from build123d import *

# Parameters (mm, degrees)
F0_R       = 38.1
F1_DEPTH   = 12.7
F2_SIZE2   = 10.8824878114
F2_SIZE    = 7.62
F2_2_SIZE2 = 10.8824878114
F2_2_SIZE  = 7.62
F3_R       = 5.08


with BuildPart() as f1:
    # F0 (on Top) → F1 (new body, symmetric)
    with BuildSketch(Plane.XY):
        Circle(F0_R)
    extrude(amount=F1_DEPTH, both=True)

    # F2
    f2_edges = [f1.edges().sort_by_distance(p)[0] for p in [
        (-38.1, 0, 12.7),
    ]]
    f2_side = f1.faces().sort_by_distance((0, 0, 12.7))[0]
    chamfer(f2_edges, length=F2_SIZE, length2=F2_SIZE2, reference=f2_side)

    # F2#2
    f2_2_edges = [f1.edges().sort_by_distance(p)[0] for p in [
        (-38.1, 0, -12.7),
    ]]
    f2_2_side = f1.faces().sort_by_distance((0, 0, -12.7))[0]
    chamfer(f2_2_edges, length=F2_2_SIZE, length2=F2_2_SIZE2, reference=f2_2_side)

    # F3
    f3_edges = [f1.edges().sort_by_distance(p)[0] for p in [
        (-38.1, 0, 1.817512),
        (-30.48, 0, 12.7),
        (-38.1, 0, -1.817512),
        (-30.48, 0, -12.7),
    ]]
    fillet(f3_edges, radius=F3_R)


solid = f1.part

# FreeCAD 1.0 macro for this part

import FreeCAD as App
import Part
import Sketcher
Q = App.Units.Quantity


def edges_at(feature, points):
    """Names of the edges that pass closest to the given points."""
    edges = feature.Shape.Edges
    near = lambda p: min(range(len(edges)), key=lambda i: edges[i].distToShape(Part.Vertex(*p))[0])
    return sorted({f"Edge{near(p) + 1}" for p in points})

doc = App.newDocument("Part")
body = doc.addObject("PartDesign::Body", "Body")

sketch1 = body.newObject("Sketcher::SketchObject", "Sketch")
sketch1.AttachmentSupport = (doc.getObject("XY_Plane"), [""])
sketch1.MapMode = "FlatFace"
sketch1.addGeometry(Part.Circle(App.Vector(0, 0, 0), App.Vector(0, 0, 1), 38), False)
sketch1.addConstraint(Sketcher.Constraint("Coincident", 0, 3, -1, 1))
sketch1.addConstraint(Sketcher.Constraint("Diameter", 0, Q("3 in")))
pad1 = body.newObject("PartDesign::Pad", "Pad")
pad1.Profile = sketch1
pad1.Length = Q("1 in")
pad1.Midplane = True
doc.recompute()

chamfer = body.newObject("PartDesign::Chamfer", "Chamfer")
chamfer.Base = (pad1, edges_at(pad1, [(-38.1, 0, 12.7)]))
chamfer.ChamferType = "Two distances"
chamfer.Size = Q("0.3 in")
chamfer.Size2 = 10.882488
chamfer.FlipDirection = True
doc.recompute()

chamfer2 = body.newObject("PartDesign::Chamfer", "Chamfer001")
chamfer2.Base = (chamfer, edges_at(chamfer, [(-38.1, 0, -12.7)]))
chamfer2.ChamferType = "Two distances"
chamfer2.Size = Q("0.3 in")
chamfer2.Size2 = 10.882488
chamfer2.FlipDirection = True
doc.recompute()

fillet = body.newObject("PartDesign::Fillet", "Fillet")
fillet.Base = (chamfer2, edges_at(chamfer2, [
    (-38.1, 0, 1.818),
    (-30.48, 0, 12.7),
    (-38.1, 0, -1.818),
    (-30.48, 0, -12.7),
]))
fillet.Radius = Q("0.2 in")

doc.recompute()
